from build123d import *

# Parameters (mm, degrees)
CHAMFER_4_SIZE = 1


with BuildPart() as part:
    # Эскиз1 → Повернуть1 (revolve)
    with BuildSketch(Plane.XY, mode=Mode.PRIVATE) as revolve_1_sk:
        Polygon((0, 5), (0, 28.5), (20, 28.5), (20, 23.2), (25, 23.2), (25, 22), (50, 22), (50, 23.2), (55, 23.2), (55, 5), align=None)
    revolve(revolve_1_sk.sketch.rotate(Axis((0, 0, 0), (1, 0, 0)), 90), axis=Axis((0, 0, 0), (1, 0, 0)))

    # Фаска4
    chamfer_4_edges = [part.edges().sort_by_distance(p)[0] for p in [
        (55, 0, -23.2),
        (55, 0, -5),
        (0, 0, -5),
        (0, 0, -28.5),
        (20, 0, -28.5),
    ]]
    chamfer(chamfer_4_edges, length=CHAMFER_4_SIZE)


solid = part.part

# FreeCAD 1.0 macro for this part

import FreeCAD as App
import Part
import Sketcher
Q = App.Units.Quantity


def edges_at(feature, points):
    """Names of the edges that pass closest to the given points."""
    edges = feature.Shape.Edges
    near = lambda p: min(range(len(edges)), key=lambda i: edges[i].distToShape(Part.Vertex(*p))[0])
    return sorted({f"Edge{near(p) + 1}" for p in points})


def add_polygon(sketch, points):
    """Adds a closed chain of lines whose ends are joined by coincident constraints."""
    first, n = sketch.GeometryCount, len(points)
    for a, b in zip(points, points[1:] + points[:1]):
        sketch.addGeometry(Part.LineSegment(App.Vector(*a, 0), App.Vector(*b, 0)), False)
    for i in range(n):
        sketch.addConstraint(Sketcher.Constraint("Coincident", first + i, 2, first + (i + 1) % n, 1))

doc = App.newDocument("Part")
body = doc.addObject("PartDesign::Body", "Body")

sketch1 = body.newObject("Sketcher::SketchObject", "Sketch")
sketch1.AttachmentSupport = (doc.getObject("XY_Plane"), [""])
sketch1.MapMode = "FlatFace"
add_polygon(sketch1, [(0, 28.5), (0, 5), (55, 5), (55, 23.2), (50, 23.2), (50, 22), (25, 22), (25, 23.2), (20, 23.2), (20, 28.5)])
sketch1.addConstraint(Sketcher.Constraint("Vertical", 0))
sketch1.addConstraint(Sketcher.Constraint("Horizontal", 1))
sketch1.addConstraint(Sketcher.Constraint("Vertical", 2))
sketch1.addConstraint(Sketcher.Constraint("Horizontal", 3))
sketch1.addConstraint(Sketcher.Constraint("Vertical", 4))
sketch1.addConstraint(Sketcher.Constraint("Horizontal", 5))
sketch1.addConstraint(Sketcher.Constraint("Vertical", 6))
sketch1.addConstraint(Sketcher.Constraint("Horizontal", 7))
sketch1.addConstraint(Sketcher.Constraint("Vertical", 8))
sketch1.addConstraint(Sketcher.Constraint("Horizontal", 9))
sketch1.addConstraint(Sketcher.Constraint("PointOnObject", 0, 2, -2))
sketch1.addConstraint(Sketcher.Constraint("Horizontal", 3, 2, 6, 2))
sketch1.addConstraint(Sketcher.Constraint("Equal", 3, 7))
sketch1.addConstraint(Sketcher.Constraint("DistanceX", 1, 1, 1, 2, Q("55 mm")))
sketch1.addConstraint(Sketcher.Constraint("DistanceX", 3, 2, 3, 1, Q("5 mm")))
sketch1.addConstraint(Sketcher.Constraint("DistanceX", 5, 2, 5, 1, Q("25 mm")))
sketch1.addConstraint(Sketcher.Constraint("DistanceY", 0, 2, 0, 1, Q("23.5 mm")))
sketch1.addConstraint(Sketcher.Constraint("DistanceY", 2, 1, 2, 2, Q("18.2 mm")))
sketch1.addConstraint(Sketcher.Constraint("DistanceY", 4, 2, 4, 1, Q("1.2 mm")))
sketch1.addConstraint(Sketcher.Constraint("DistanceY", -1, 1, 0, 2, Q("5 mm")))
revolution = body.newObject("PartDesign::Revolution", "Revolution")
revolution.Profile = sketch1
revolution.ReferenceAxis = (sketch1, ["H_Axis"])
revolution.Angle = 360
doc.recompute()

chamfer = body.newObject("PartDesign::Chamfer", "Chamfer")
chamfer.Base = (revolution, edges_at(revolution, [
    (55, 0, -23.2),
    (55, 0, -5),
    (0, 0, -5),
    (0, 0, -28.5),
    (20, 0, -28.5),
]))
chamfer.Size = 1

doc.recompute()
